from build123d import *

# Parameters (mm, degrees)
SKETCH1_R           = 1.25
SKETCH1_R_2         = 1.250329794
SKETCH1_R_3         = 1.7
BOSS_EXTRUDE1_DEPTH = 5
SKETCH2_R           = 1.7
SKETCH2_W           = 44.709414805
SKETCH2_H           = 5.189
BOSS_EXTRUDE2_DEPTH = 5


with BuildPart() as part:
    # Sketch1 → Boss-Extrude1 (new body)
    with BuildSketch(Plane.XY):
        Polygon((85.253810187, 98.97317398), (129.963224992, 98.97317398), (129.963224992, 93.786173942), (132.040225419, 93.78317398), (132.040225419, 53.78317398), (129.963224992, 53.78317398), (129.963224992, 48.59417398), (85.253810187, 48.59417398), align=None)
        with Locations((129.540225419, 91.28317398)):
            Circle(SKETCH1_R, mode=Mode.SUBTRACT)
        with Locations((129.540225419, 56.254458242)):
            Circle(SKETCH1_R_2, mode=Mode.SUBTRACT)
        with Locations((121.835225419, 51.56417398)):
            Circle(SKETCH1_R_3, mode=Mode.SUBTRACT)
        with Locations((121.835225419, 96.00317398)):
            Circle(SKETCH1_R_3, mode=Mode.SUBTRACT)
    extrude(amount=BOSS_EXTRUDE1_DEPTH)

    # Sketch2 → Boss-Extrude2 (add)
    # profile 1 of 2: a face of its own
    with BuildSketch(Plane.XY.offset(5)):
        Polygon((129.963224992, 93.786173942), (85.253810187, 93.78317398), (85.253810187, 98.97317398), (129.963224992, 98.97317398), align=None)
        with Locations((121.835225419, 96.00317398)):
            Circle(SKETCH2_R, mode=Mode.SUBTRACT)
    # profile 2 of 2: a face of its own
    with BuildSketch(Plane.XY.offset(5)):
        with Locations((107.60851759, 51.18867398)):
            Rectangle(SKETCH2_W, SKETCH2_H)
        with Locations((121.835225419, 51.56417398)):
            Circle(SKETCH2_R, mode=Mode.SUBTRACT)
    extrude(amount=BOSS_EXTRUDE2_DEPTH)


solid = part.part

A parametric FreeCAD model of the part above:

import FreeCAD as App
import Part
import Sketcher

V = App.Vector


def add_polygon(sketch, points):
    """Adds a closed chain of lines whose ends are joined by coincident constraints."""
    first, n = sketch.GeometryCount, len(points)
    for a, b in zip(points, points[1:] + points[:1]):
        sketch.addGeometry(Part.LineSegment(App.Vector(*a, 0), App.Vector(*b, 0)), False)
    for i in range(n):
        sketch.addConstraint(Sketcher.Constraint("Coincident", first + i, 2, first + (i + 1) % n, 1))

doc = App.newDocument("Part")
body = doc.addObject("PartDesign::Body", "Body")

sketch1 = doc.addObject("Sketcher::SketchObject", "Sketch")
body.addObject(sketch1)
sketch1.AttachmentSupport = (doc.XY_Plane, [""])
sketch1.MapMode = "FlatFace"
add_polygon(sketch1, [(129.963225, 98.973174), (85.25381, 98.973174), (85.25381, 48.594174), (129.963225, 48.594174), (129.963225, 53.783174), (132.040225, 53.783174), (132.040225, 93.783174), (129.963225, 93.786174)])
sketch1.addGeometry(Part.Circle(V(129.540225, 56.254458, 0), V(0, 0, 1), 1.25033), False)
sketch1.addGeometry(Part.Circle(V(121.835225, 51.564174, 0), V(0, 0, 1), 1.7), False)
sketch1.addGeometry(Part.Circle(V(129.540225, 91.283174, 0), V(0, 0, 1), 1.25), False)
sketch1.addGeometry(Part.Circle(V(121.835225, 96.003174, 0), V(0, 0, 1), 1.7), False)
sketch1.addConstraint([
    Sketcher.Constraint("Horizontal", 0),
    Sketcher.Constraint("Vertical", 1),
    Sketcher.Constraint("Horizontal", 2),
    Sketcher.Constraint("Vertical", 3),
    Sketcher.Constraint("Horizontal", 4),
    Sketcher.Constraint("Vertical", 5),
    Sketcher.Constraint("Vertical", 7),
    Sketcher.Constraint("Equal", 9, 11),
    Sketcher.Constraint("Vertical", 8, 3, 10, 3),
    Sketcher.Constraint("Vertical", 9, 3, 11, 3),
    Sketcher.Constraint("Vertical", 3, 2, 6, 2),
    Sketcher.Constraint("Diameter", 9, 3.4),
    Sketcher.Constraint("Diameter", 10, 2.5),
    Sketcher.Constraint("DistanceY", 5, 1, 5, 2, 40.0),
    Sketcher.Constraint("DistanceY", 3, 2, 10, 3, 37.5),
    Sketcher.Constraint("DistanceX", 8, 3, 4, 2, 2.5),
    Sketcher.Constraint("Diameter", 8, 2.50066),
    Sketcher.Constraint("DistanceX", 4, 1, 4, 2, 2.077),
    Sketcher.Constraint("DistanceY", 1, 2, 1, 1, 50.379),
    Sketcher.Constraint("DistanceY", 3, 1, 3, 2, 5.189),
    Sketcher.Constraint("DistanceY", 7, 1, 7, 2, 5.187),
    Sketcher.Constraint("DistanceY", 10, 3, 11, 3, 4.72),
    Sketcher.Constraint("DistanceY", 1, 2, 9, 3, 2.97),
    Sketcher.Constraint("DistanceX", 9, 3, 8, 3, 7.705),
    Sketcher.Constraint("DistanceX", 0, 2, 0, 1, 44.709415),
    Sketcher.Constraint("DistanceY", -1, 1, 8, 3, 56.254458),
    Sketcher.Constraint("DistanceX", -1, 1, 0, 2, 85.25381),
    Sketcher.Constraint("DistanceY", -1, 1, 9, 3, 51.564174),
])
pad1 = doc.addObject("PartDesign::Pad", "Pad")
body.addObject(pad1)
pad1.Profile = sketch1
pad1.Length = 5

sketch2 = doc.addObject("Sketcher::SketchObject", "Sketch001")
body.addObject(sketch2)
sketch2.AttachmentSupport = (doc.XY_Plane, [""])
sketch2.MapMode = "FlatFace"
sketch2.AttachmentOffset = App.Placement(V(0, 0, 5), App.Rotation())
add_polygon(sketch2, [(85.25381, 93.783174), (129.963225, 93.786174), (129.963225, 98.973174), (85.25381, 98.973174)])
sketch2.addGeometry(Part.Circle(V(121.835225, 96.003174, 0), V(0, 0, 1), 1.7), False)
add_polygon(sketch2, [(85.25381, 53.783174), (85.25381, 48.594174), (129.963225, 48.594174), (129.963225, 53.783174)])
sketch2.addGeometry(Part.Circle(V(121.835225, 51.564174, 0), V(0, 0, 1), 1.7), False)
sketch2.addConstraint([
    Sketcher.Constraint("Vertical", 1),
    Sketcher.Constraint("Horizontal", 2),
    Sketcher.Constraint("Vertical", 3),
    Sketcher.Constraint("Vertical", 5),
    Sketcher.Constraint("Horizontal", 6),
    Sketcher.Constraint("Vertical", 7),
    Sketcher.Constraint("Horizontal", 8),
    Sketcher.Constraint("Equal", 4, 9),
    Sketcher.Constraint("Vertical", 4, 3, 9, 3),
    Sketcher.Constraint("Vertical", 3, 2, 5, 2),
    Sketcher.Constraint("Vertical", 1, 2, 6, 2),
    Sketcher.Constraint("Diameter", 4, 3.4),
    Sketcher.Constraint("DistanceY", 8, 2, 3, 2, 40.0),
    Sketcher.Constraint("DistanceY", 3, 2, 3, 1, 5.19),
    Sketcher.Constraint("DistanceY", 1, 1, 1, 2, 5.187),
    Sketcher.Constraint("DistanceY", 5, 2, 5, 1, 5.189),
    Sketcher.Constraint("DistanceY", 4, 3, 1, 2, 2.97),
    Sketcher.Constraint("DistanceY", 5, 2, 9, 3, 2.97),
    Sketcher.Constraint("DistanceX", 4, 3, 0, 2, 8.128),
    Sketcher.Constraint("DistanceX", 2, 2, 2, 1, 44.709415),
    Sketcher.Constraint("DistanceX", -1, 1, 2, 2, 85.25381),
    Sketcher.Constraint("DistanceY", -1, 1, 4, 3, 96.003174),
])
pad2 = doc.addObject("PartDesign::Pad", "Pad001")
body.addObject(pad2)
pad2.Profile = sketch2
pad2.Length = 5

doc.recompute()
